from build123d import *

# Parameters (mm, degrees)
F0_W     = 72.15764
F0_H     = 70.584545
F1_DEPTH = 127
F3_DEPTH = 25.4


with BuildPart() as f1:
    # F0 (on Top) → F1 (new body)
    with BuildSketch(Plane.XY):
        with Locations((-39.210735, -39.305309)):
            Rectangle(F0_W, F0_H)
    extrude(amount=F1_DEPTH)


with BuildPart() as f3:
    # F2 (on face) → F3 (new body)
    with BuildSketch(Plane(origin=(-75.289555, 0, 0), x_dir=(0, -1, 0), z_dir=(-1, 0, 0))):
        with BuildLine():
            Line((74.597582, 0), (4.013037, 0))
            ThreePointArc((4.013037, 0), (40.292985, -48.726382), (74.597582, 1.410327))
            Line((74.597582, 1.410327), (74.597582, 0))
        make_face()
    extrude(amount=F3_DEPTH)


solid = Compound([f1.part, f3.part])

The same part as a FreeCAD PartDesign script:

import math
import FreeCAD as App
import Part
import Sketcher

V = App.Vector
Q = App.Units.Quantity

doc = App.newDocument("Part")
body = doc.addObject("PartDesign::Body", "Body")

# Sketch on XY plane
sketch1 = doc.addObject("Sketcher::SketchObject", "Sketch")
body.addObject(sketch1)
sketch1.AttachmentSupport = (doc.XY_Plane, [""])
sketch1.MapMode = "FlatFace"
sketch1.addGeometry(Part.LineSegment(V(-75, -4, 0), V(-75, -75, 0)), False)
sketch1.addGeometry(Part.LineSegment(V(-75, -75, 0), V(-3, -75, 0)), False)
sketch1.addGeometry(Part.LineSegment(V(-3, -75, 0), V(-3, -4, 0)), False)
sketch1.addGeometry(Part.LineSegment(V(-3, -4, 0), V(-75, -4, 0)), False)
sketch1.addConstraint(Sketcher.Constraint("Coincident", 0, 2, 1, 1))
sketch1.addConstraint(Sketcher.Constraint("Coincident", 1, 2, 2, 1))
sketch1.addConstraint(Sketcher.Constraint("Coincident", 2, 2, 3, 1))
sketch1.addConstraint(Sketcher.Constraint("Coincident", 3, 2, 0, 1))
sketch1.addConstraint(Sketcher.Constraint("Vertical", 0))
sketch1.addConstraint(Sketcher.Constraint("Horizontal", 1))
sketch1.addConstraint(Sketcher.Constraint("Vertical", 2))
sketch1.addConstraint(Sketcher.Constraint("Horizontal", 3))
sketch1.addConstraint(Sketcher.Constraint("DistanceX", 1, 1, 1, 2, 72.15764))
sketch1.addConstraint(Sketcher.Constraint("DistanceY", 0, 2, 0, 1, 70.584545))
sketch1.addConstraint(Sketcher.Constraint("DistanceY", 0, 2, -1, 1, 74.597582))
sketch1.addConstraint(Sketcher.Constraint("DistanceX", 0, 2, -1, 1, 75.289555))
pad1 = doc.addObject("PartDesign::Pad", "Pad")
body.addObject(pad1)
pad1.Profile = sketch1
pad1.Length = Q("5 in")
body2 = doc.addObject("PartDesign::Body", "Body001")

# Sketch on YZ plane
sketch2 = doc.addObject("Sketcher::SketchObject", "Sketch001")
body2.addObject(sketch2)
sketch2.AttachmentSupport = (doc.getObject("YZ_Plane001"), [""])
sketch2.MapMode = "FlatFace"
sketch2.AttachmentOffset = App.Placement(V(0, 0, -75.289555), App.Rotation())
sketch2.addGeometry(Part.LineSegment(V(-74.6, 0, 0), V(-4, 0, 0)), False)
sketch2.addGeometry(Part.ArcOfCircle(Part.Circle(V(-39.5, -11.4, 0), V(0, 0, 1), 37.3), math.radians(160), math.radians(378)), False)
sketch2.addGeometry(Part.LineSegment(V(-74.6, 1.4, 0), V(-74.6, 0, 0)), False)
sketch2.addConstraint(Sketcher.Constraint("Coincident", 0, 2, 1, 2))
sketch2.addConstraint(Sketcher.Constraint("Coincident", 1, 1, 2, 1))
sketch2.addConstraint(Sketcher.Constraint("Coincident", 2, 2, 0, 1))
sketch2.addConstraint(Sketcher.Constraint("Horizontal", 0))
sketch2.addConstraint(Sketcher.Constraint("Vertical", 2))
sketch2.addConstraint(Sketcher.Constraint("PointOnObject", 0, 2, -1))
sketch2.addConstraint(Sketcher.Constraint("Radius", 1, 37.321901))
sketch2.addConstraint(Sketcher.Constraint("DistanceX", 0, 1, 0, 2, 70.584545))
sketch2.addConstraint(Sketcher.Constraint("DistanceY", 2, 2, 2, 1, 1.410327))
sketch2.addConstraint(Sketcher.Constraint("DistanceX", 1, 1, -1, 1, 74.597582))
pad2 = doc.addObject("PartDesign::Pad", "Pad001")
body2.addObject(pad2)
pad2.Profile = sketch2
pad2.Length = Q("1 in")
pad2.Reversed = True

doc.recompute()
